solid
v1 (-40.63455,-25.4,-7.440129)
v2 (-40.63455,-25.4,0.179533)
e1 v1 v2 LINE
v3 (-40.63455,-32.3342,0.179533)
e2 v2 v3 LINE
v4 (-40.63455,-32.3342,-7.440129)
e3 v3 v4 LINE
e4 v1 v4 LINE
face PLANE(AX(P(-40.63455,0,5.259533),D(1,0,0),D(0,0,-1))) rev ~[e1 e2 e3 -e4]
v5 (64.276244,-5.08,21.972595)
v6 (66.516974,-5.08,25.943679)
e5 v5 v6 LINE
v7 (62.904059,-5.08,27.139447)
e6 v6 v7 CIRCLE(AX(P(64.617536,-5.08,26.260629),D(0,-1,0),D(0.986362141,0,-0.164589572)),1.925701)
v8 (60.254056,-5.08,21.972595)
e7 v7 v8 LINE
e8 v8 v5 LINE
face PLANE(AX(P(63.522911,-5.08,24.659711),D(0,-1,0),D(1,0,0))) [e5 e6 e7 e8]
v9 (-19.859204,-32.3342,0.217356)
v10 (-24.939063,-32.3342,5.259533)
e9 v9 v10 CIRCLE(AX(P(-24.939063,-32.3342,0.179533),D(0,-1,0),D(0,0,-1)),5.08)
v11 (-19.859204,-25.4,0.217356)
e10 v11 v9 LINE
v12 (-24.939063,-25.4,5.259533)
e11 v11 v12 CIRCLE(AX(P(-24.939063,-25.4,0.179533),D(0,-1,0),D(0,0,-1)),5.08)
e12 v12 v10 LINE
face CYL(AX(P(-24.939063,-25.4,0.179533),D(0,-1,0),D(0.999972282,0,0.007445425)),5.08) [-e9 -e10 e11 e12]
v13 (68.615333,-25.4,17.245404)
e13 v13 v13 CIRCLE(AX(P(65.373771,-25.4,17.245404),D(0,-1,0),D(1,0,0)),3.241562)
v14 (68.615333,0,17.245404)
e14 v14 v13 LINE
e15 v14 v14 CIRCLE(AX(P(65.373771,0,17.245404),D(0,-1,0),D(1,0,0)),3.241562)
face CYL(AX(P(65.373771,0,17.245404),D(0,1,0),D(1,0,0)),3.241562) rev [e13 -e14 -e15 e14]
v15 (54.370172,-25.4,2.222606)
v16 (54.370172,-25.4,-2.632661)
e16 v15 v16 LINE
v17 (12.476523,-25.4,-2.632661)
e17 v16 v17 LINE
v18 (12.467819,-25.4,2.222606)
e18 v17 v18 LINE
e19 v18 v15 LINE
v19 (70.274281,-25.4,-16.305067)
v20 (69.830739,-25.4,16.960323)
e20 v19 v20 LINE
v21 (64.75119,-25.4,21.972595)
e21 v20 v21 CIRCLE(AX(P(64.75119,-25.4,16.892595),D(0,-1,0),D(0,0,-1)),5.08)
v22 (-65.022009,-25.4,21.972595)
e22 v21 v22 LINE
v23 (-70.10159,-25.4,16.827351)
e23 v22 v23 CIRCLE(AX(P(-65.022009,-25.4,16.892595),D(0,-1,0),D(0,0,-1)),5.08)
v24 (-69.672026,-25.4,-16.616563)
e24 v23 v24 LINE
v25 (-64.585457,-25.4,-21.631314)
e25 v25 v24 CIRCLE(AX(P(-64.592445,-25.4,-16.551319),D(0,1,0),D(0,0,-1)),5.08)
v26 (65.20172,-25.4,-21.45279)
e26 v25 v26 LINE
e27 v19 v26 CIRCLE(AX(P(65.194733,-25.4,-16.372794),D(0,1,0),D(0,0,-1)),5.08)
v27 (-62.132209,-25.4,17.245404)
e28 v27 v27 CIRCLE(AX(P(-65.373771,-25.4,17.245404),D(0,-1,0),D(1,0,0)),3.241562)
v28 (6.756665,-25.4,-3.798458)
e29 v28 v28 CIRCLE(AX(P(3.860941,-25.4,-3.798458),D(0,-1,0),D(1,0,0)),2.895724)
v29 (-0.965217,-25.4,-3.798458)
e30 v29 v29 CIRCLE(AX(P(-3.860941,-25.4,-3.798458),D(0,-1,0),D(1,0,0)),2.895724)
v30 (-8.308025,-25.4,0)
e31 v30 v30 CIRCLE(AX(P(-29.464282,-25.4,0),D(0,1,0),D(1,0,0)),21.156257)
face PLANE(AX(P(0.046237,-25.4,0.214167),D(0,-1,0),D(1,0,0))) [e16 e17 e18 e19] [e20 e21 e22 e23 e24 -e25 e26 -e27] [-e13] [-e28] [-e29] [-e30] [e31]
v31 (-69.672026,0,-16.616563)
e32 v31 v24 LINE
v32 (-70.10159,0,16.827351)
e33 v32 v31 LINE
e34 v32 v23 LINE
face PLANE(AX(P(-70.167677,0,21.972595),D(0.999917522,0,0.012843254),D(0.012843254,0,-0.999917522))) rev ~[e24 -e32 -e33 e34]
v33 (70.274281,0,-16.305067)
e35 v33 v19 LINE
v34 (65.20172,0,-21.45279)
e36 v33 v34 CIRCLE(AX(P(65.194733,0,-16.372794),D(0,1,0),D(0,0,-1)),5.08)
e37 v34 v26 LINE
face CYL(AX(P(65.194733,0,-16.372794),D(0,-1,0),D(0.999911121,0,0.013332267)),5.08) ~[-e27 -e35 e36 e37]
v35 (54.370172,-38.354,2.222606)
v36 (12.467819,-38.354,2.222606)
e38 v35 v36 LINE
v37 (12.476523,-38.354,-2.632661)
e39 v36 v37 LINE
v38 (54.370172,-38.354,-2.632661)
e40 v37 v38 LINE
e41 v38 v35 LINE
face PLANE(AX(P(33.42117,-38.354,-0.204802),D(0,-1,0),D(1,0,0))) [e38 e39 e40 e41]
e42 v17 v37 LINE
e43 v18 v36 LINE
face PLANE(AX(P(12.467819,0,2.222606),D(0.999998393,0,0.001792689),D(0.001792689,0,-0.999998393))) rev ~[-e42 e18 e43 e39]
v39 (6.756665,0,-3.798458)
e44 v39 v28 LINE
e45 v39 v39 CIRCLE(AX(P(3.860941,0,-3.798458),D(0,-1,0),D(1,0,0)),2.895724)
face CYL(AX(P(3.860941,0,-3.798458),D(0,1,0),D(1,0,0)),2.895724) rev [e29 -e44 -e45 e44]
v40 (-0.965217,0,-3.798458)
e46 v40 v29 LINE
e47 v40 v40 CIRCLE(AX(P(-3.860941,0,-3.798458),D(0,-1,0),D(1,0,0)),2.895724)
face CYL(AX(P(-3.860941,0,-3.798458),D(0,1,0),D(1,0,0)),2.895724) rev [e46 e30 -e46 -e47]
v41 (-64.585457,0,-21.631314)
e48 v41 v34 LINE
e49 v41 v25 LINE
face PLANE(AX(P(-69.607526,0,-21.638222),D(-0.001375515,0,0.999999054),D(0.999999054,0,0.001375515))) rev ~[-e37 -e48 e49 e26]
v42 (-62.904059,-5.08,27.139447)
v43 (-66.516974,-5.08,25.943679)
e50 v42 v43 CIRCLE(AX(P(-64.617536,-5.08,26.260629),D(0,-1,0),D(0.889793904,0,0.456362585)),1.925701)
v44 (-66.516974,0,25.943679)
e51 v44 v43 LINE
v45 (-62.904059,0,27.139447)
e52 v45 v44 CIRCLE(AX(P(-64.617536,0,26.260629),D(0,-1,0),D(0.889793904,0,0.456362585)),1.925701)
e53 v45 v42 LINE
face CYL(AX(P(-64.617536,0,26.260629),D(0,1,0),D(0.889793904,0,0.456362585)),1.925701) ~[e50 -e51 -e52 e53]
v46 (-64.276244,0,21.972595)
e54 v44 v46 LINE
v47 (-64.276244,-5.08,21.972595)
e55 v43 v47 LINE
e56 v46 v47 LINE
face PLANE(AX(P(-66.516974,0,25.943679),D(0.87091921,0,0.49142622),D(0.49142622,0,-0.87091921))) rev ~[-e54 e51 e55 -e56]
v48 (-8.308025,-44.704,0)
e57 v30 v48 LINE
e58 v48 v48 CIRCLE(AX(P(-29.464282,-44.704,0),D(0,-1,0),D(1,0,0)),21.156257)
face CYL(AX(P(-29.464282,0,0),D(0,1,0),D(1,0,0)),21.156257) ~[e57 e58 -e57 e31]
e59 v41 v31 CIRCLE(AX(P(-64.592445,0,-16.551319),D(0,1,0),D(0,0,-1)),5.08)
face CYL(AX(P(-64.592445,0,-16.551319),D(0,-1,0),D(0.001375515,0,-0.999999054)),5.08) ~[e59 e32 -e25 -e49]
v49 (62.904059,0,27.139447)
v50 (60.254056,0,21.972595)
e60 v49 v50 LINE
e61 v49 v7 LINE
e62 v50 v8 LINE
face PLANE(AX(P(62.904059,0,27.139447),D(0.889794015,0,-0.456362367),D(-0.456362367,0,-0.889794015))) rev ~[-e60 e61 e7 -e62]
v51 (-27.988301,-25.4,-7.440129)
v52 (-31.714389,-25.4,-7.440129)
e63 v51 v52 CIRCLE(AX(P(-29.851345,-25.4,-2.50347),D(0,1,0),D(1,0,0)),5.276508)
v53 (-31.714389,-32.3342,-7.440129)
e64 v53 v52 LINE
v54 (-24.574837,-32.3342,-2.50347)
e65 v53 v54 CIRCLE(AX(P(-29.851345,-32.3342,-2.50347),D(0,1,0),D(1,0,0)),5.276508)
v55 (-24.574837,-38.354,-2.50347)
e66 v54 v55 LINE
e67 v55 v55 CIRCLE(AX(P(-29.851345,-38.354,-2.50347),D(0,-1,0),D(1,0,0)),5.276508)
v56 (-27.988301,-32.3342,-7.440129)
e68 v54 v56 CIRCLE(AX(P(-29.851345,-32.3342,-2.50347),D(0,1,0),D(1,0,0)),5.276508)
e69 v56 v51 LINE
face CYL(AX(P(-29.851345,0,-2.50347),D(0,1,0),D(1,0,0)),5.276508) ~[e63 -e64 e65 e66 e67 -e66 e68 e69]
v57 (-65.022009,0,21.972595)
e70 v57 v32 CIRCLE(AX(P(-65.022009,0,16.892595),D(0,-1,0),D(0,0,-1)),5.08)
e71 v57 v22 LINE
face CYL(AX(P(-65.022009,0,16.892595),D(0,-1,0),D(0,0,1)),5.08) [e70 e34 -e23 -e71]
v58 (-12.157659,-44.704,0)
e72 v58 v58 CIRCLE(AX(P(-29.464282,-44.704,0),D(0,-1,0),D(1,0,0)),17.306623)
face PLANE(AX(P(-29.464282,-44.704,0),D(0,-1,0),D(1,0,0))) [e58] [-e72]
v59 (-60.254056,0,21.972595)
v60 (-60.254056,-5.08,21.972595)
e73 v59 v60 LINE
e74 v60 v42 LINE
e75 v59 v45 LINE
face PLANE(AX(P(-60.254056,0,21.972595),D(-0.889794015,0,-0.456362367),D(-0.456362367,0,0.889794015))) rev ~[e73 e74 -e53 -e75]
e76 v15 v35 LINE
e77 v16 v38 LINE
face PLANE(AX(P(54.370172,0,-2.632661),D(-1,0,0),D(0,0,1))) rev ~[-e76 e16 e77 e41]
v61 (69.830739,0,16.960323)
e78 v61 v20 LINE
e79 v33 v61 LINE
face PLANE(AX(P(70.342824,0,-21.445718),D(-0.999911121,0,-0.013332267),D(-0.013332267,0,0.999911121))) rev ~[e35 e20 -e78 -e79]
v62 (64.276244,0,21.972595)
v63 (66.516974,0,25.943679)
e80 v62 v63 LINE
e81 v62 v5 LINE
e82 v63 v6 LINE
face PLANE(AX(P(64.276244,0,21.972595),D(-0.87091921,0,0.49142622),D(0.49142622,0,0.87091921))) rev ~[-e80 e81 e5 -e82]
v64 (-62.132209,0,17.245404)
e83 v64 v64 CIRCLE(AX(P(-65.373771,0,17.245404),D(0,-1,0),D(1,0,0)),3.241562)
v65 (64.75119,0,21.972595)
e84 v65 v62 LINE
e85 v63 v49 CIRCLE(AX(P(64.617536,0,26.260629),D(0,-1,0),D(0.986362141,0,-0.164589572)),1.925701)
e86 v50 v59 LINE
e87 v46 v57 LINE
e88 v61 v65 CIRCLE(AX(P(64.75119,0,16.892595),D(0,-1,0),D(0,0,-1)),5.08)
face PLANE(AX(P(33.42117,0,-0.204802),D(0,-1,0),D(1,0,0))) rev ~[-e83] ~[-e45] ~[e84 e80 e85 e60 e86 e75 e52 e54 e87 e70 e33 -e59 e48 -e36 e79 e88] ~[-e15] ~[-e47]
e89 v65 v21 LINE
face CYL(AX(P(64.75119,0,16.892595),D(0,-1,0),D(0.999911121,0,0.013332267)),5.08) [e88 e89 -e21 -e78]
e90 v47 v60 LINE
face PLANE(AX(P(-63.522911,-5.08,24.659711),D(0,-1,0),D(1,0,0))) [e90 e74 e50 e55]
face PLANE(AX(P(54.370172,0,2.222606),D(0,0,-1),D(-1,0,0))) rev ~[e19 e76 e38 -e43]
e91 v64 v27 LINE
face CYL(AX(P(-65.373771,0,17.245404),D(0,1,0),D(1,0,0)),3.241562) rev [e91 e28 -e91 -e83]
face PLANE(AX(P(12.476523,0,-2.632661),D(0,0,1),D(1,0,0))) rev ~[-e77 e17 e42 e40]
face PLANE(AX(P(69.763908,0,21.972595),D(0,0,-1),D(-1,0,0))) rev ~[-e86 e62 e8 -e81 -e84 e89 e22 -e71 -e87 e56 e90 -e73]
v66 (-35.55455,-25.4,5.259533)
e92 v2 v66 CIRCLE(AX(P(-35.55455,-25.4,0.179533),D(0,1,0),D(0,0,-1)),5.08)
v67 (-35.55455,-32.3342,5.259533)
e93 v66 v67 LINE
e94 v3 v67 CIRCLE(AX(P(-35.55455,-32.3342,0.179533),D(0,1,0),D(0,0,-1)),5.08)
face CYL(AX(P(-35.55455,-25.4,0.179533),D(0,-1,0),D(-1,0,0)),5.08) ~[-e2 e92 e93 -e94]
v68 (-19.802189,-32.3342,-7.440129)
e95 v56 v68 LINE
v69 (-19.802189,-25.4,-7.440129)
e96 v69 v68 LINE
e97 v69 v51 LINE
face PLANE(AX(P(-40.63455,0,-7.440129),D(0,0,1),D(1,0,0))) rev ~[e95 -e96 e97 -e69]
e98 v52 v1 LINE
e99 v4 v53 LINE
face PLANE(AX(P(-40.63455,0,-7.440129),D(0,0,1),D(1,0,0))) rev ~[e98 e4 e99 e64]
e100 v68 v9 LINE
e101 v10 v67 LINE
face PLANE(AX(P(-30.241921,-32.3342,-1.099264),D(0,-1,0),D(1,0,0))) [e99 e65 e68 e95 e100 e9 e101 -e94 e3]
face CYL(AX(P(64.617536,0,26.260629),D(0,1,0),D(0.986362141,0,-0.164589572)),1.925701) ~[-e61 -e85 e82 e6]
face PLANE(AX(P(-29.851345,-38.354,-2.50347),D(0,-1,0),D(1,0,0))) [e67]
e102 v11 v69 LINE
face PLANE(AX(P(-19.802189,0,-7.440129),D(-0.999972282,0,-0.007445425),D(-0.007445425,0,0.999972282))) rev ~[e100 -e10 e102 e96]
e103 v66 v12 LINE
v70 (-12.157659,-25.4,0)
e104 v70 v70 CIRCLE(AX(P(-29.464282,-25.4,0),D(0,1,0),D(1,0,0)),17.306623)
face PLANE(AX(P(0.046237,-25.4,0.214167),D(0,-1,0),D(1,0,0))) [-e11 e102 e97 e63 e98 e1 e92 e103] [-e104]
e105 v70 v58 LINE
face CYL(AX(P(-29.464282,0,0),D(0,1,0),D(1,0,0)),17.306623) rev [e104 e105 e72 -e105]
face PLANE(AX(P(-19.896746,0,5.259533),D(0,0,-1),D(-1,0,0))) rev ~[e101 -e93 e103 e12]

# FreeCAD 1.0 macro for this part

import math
import FreeCAD as App
import Part
import Sketcher

V = App.Vector
Q = App.Units.Quantity


def edges_at(feature, points):
    """Names of the edges that pass closest to the given points."""
    edges = feature.Shape.Edges
    near = lambda p: min(range(len(edges)), key=lambda i: edges[i].distToShape(Part.Vertex(*p))[0])
    return sorted({f"Edge{near(p) + 1}" for p in points})


def add_polygon(sketch, points):
    """Adds a closed chain of lines whose ends are joined by coincident constraints."""
    first, n = sketch.GeometryCount, len(points)
    for a, b in zip(points, points[1:] + points[:1]):
        sketch.addGeometry(Part.LineSegment(App.Vector(*a, 0), App.Vector(*b, 0)), False)
    for i in range(n):
        sketch.addConstraint(Sketcher.Constraint("Coincident", first + i, 2, first + (i + 1) % n, 1))

doc = App.newDocument("Part")
params = doc.addObject("Spreadsheet::Sheet", "Params")
for row, (alias, value) in enumerate([
    ("pad1_length", "1 in"),
    ("fillet_radius", "0.2 in"),
    ("pad2_length", "0.2 in"),
    ("pad3_length", "1.273 in"),
    ("fillet2_radius", "0.2 in"),
    ("pad4_length", "1.51 in"),
    ("pad5_length", "1.76 in"),
    ("pad6_length", "1.51 in"),
], start=1):
    params.set(f"A{row}", alias)
    params.set(f"B{row}", "=" + value)
    params.setAlias(f"B{row}", alias)

body = doc.addObject("PartDesign::Body", "Body")

# Sketch on XZ plane
sketch1 = body.newObject("Sketcher::SketchObject", "Sketch")
sketch1.AttachmentSupport = (doc.getObject("XZ_Plane"), [""])
sketch1.MapMode = "FlatFace"
add_polygon(sketch1, [(70.342824, -21.445718), (69.763908, 21.972595), (-70.167677, 21.972595), (-69.607526, -21.638222)])  # lines 0-3
sketch1.addGeometry(Part.Circle(V(-3.860941, -3.798458, 0), V(0, 0, 1), 2.895724), False)  # 4
sketch1.addGeometry(Part.Circle(V(3.860941, -3.798458, 0), V(0, 0, 1), 2.895724), False)  # 5
sketch1.addGeometry(Part.Circle(V(-65.373771, 17.245404, 0), V(0, 0, 1), 3.241562), False)  # 6
sketch1.addGeometry(Part.Circle(V(65.373771, 17.245404, 0), V(0, 0, 1), 3.241562), False)  # 7
sketch1.addConstraint(Sketcher.Constraint("Horizontal", 1))
sketch1.addConstraint(Sketcher.Constraint("Equal", 4, 5))
sketch1.addConstraint(Sketcher.Constraint("Equal", 6, 7))
sketch1.addConstraint(Sketcher.Constraint("Symmetric", 4, 3, 5, 3, -2))
sketch1.addConstraint(Sketcher.Constraint("Symmetric", 6, 3, 7, 3, -2))
sketch1.addConstraint(Sketcher.Constraint("Diameter", 4, Q("5.791448 mm")))
sketch1.addConstraint(Sketcher.Constraint("Diameter", 6, Q("6.483124 mm")))
sketch1.addConstraint(Sketcher.Constraint("DistanceX", 1, 2, 1, 1, Q("139.931585 mm")))
sketch1.addConstraint(Sketcher.Constraint("DistanceX", 4, 3, -1, 1, Q("3.860941 mm")))
sketch1.addConstraint(Sketcher.Constraint("DistanceY", 4, 3, -1, 1, Q("3.798458 mm")))
sketch1.addConstraint(Sketcher.Constraint("DistanceX", 6, 3, -1, 1, Q("65.373771 mm")))
sketch1.addConstraint(Sketcher.Constraint("DistanceX", -1, 1, 0, 2, Q("69.763908 mm")))
sketch1.addConstraint(Sketcher.Constraint("DistanceY", 2, 2, -1, 1, Q("21.638222 mm")))
sketch1.addConstraint(Sketcher.Constraint("DistanceY", 7, 3, 0, 2, Q("4.727191 mm")))
sketch1.addConstraint(Sketcher.Constraint("DistanceX", 1, 2, 2, 2, Q("0.560151 mm")))
sketch1.addConstraint(Sketcher.Constraint("DistanceY", 3, 2, 5, 3, Q("17.64726 mm")))
sketch1.addConstraint(Sketcher.Constraint("DistanceX", 2, 2, 3, 2, Q("139.95035 mm")))
sketch1.addConstraint(Sketcher.Constraint("Distance", 0, Q("43.422172 mm")))
pad1 = body.newObject("PartDesign::Pad", "Pad")
pad1.Profile = sketch1
pad1.setExpression("Length", "Params.pad1_length")
doc.recompute()

fillet = body.newObject("PartDesign::Fillet", "Fillet")
fillet.Base = (pad1, edges_at(pad1, [
    (69.764, -12.7, 21.973),
    (-70.168, -12.7, 21.973),
    (-69.608, -12.7, -21.638),
    (70.343, -12.7, -21.446),
]))
fillet.setExpression("Radius", "Params.fillet_radius")

# Sketch on XZ plane
sketch2 = body.newObject("Sketcher::SketchObject", "Sketch001")
sketch2.AttachmentSupport = (doc.getObject("XZ_Plane"), [""])
sketch2.MapMode = "FlatFace"
sketch2.addGeometry(Part.LineSegment(V(-64.276244, 21.972595, 0), V(-60.254056, 21.972595, 0)), False)
sketch2.addGeometry(Part.LineSegment(V(-60.254056, 21.972595, 0), V(-62.904059, 27.139447, 0)), False)
sketch2.addGeometry(Part.ArcOfCircle(Part.Circle(V(-64.617536, 26.260629, 0), V(0, 0, 1), 1.925701), math.radians(27.15264), math.radians(189.473393)), False)
sketch2.addGeometry(Part.LineSegment(V(-66.516974, 25.943679, 0), V(-64.276244, 21.972595, 0)), False)
sketch2.addGeometry(Part.LineSegment(V(60.254056, 21.972595, 0), V(64.276244, 21.972595, 0)), False)
sketch2.addGeometry(Part.LineSegment(V(64.276244, 21.972595, 0), V(66.516974, 25.943679, 0)), False)
sketch2.addGeometry(Part.ArcOfCircle(Part.Circle(V(64.617536, 26.260629, 0), V(0, 0, 1), 1.925701), math.radians(-9.473393), math.radians(152.84736)), False)
sketch2.addGeometry(Part.LineSegment(V(62.904059, 27.139447, 0), V(60.254056, 21.972595, 0)), False)
sketch2.addConstraint(Sketcher.Constraint("Coincident", 0, 2, 1, 1))
sketch2.addConstraint(Sketcher.Constraint("Tangent", 1, 2, 2, 1))
sketch2.addConstraint(Sketcher.Constraint("Coincident", 2, 2, 3, 1))
sketch2.addConstraint(Sketcher.Constraint("Coincident", 3, 2, 0, 1))
sketch2.addConstraint(Sketcher.Constraint("Coincident", 4, 2, 5, 1))
sketch2.addConstraint(Sketcher.Constraint("Coincident", 5, 2, 6, 1))
sketch2.addConstraint(Sketcher.Constraint("Tangent", 6, 2, 7, 1))
sketch2.addConstraint(Sketcher.Constraint("Coincident", 7, 2, 4, 1))
sketch2.addConstraint(Sketcher.Constraint("Horizontal", 0))
sketch2.addConstraint(Sketcher.Constraint("Horizontal", 4))
sketch2.addConstraint(Sketcher.Constraint("Equal", 2, 6))
sketch2.addConstraint(Sketcher.Constraint("Symmetric", 2, 3, 6, 3, -2))
sketch2.addConstraint(Sketcher.Constraint("Symmetric", 3, 2, 4, 2, -2))
sketch2.addConstraint(Sketcher.Constraint("Horizontal", 2, 2, 5, 2))
sketch2.addConstraint(Sketcher.Constraint("Horizontal", 1, 2, 6, 2))
sketch2.addConstraint(Sketcher.Constraint("Radius", 2, Q("1.925701 mm")))
sketch2.addConstraint(Sketcher.Constraint("DistanceX", 0, 1, 0, 2, Q("4.022188 mm")))
sketch2.addConstraint(Sketcher.Constraint("DistanceX", 0, 2, 4, 2, Q("124.5303 mm")))
sketch2.addConstraint(Sketcher.Constraint("DistanceY", -1, 1, 2, 3, Q("26.260629 mm")))
sketch2.addConstraint(Sketcher.Constraint("DistanceX", 1, 2, -1, 1, Q("62.904059 mm")))
sketch2.addConstraint(Sketcher.Constraint("DistanceY", -1, 1, 2, 2, Q("25.943679 mm")))
sketch2.addConstraint(Sketcher.Constraint("DistanceX", 2, 3, 6, 3, Q("129.235071 mm")))
pad2 = body.newObject("PartDesign::Pad", "Pad001")
pad2.Profile = sketch2
pad2.setExpression("Length", "Params.pad2_length")

# Sketch on XZ plane
sketch3 = body.newObject("Sketcher::SketchObject", "Sketch002")
sketch3.AttachmentSupport = (doc.getObject("XZ_Plane"), [""])
sketch3.MapMode = "FlatFace"
add_polygon(sketch3, [(-19.896746, 5.259533), (-40.63455, 5.259533), (-40.63455, -7.440129), (-19.802189, -7.440129)])  # lines 0-3
sketch3.addConstraint(Sketcher.Constraint("Horizontal", 0))
sketch3.addConstraint(Sketcher.Constraint("Vertical", 1))
sketch3.addConstraint(Sketcher.Constraint("Horizontal", 2))
sketch3.addConstraint(Sketcher.Constraint("DistanceX", 2, 1, 2, 2, Q("20.832361 mm")))
sketch3.addConstraint(Sketcher.Constraint("DistanceX", 0, 2, 0, 1, Q("20.737804 mm")))
sketch3.addConstraint(Sketcher.Constraint("DistanceY", 1, 2, 1, 1, Q("12.699662 mm")))
sketch3.addConstraint(Sketcher.Constraint("DistanceX", 0, 2, -1, 1, Q("40.63455 mm")))
sketch3.addConstraint(Sketcher.Constraint("DistanceY", 1, 2, -1, 1, Q("7.440129 mm")))
pad3 = body.newObject("PartDesign::Pad", "Pad002")
pad3.Profile = sketch3
pad3.setExpression("Length", "Params.pad3_length")
doc.recompute()

fillet2 = body.newObject("PartDesign::Fillet", "Fillet001")
fillet2.Base = (pad3, edges_at(pad3, [(-40.635, -28.867, 5.26), (-19.897, -28.867, 5.26)]))
fillet2.setExpression("Radius", "Params.fillet2_radius")

# Sketch on XZ plane
sketch4 = body.newObject("Sketcher::SketchObject", "Sketch003")
sketch4.AttachmentSupport = (doc.getObject("XZ_Plane"), [""])
sketch4.MapMode = "FlatFace"
sketch4.addGeometry(Part.Circle(V(-29.851345, -2.50347, 0), V(0, 0, 1), 5.276508), False)
sketch4.addConstraint(Sketcher.Constraint("Diameter", 0, Q("10.553016 mm")))
sketch4.addConstraint(Sketcher.Constraint("DistanceY", 0, 3, -1, 1, Q("2.50347 mm")))
sketch4.addConstraint(Sketcher.Constraint("DistanceX", 0, 3, -1, 1, Q("29.851345 mm")))
pad4 = body.newObject("PartDesign::Pad", "Pad003")
pad4.Profile = sketch4
pad4.setExpression("Length", "Params.pad4_length")

# Sketch on XZ plane
sketch5 = body.newObject("Sketcher::SketchObject", "Sketch004")
sketch5.AttachmentSupport = (doc.getObject("XZ_Plane"), [""])
sketch5.MapMode = "FlatFace"
sketch5.addGeometry(Part.Circle(V(-29.464282, 0, 0), V(0, 0, 1), 21.156257), False)
sketch5.addGeometry(Part.Circle(V(-29.464282, 0, 0), V(0, 0, 1), 17.306623), False)
sketch5.addConstraint(Sketcher.Constraint("Coincident", 1, 3, 0, 3))
sketch5.addConstraint(Sketcher.Constraint("PointOnObject", 0, 3, -1))
sketch5.addConstraint(Sketcher.Constraint("Diameter", 0, Q("42.312514 mm")))
sketch5.addConstraint(Sketcher.Constraint("Diameter", 1, Q("34.613246 mm")))
sketch5.addConstraint(Sketcher.Constraint("DistanceX", 0, 3, -1, 1, Q("29.464282 mm")))
pad5 = body.newObject("PartDesign::Pad", "Pad004")
pad5.Profile = sketch5
pad5.setExpression("Length", "Params.pad5_length")

# Sketch on XZ plane
sketch6 = body.newObject("Sketcher::SketchObject", "Sketch005")
sketch6.AttachmentSupport = (doc.getObject("XZ_Plane"), [""])
sketch6.MapMode = "FlatFace"
add_polygon(sketch6, [(54.370172, 2.222606), (12.467819, 2.222606), (12.476523, -2.632661), (54.370172, -2.632661)])  # lines 0-3
sketch6.addConstraint(Sketcher.Constraint("Horizontal", 0))
sketch6.addConstraint(Sketcher.Constraint("Horizontal", 2))
sketch6.addConstraint(Sketcher.Constraint("Vertical", 3))
sketch6.addConstraint(Sketcher.Constraint("DistanceX", 2, 1, 2, 2, Q("41.893649 mm")))
sketch6.addConstraint(Sketcher.Constraint("DistanceX", 0, 2, 0, 1, Q("41.902353 mm")))
sketch6.addConstraint(Sketcher.Constraint("DistanceY", 3, 1, 3, 2, Q("4.855267 mm")))
sketch6.addConstraint(Sketcher.Constraint("DistanceX", -1, 1, 0, 2, Q("12.467819 mm")))
sketch6.addConstraint(Sketcher.Constraint("DistanceY", 1, 2, -1, 1, Q("2.632661 mm")))
pad6 = body.newObject("PartDesign::Pad", "Pad005")
pad6.Profile = sketch6
pad6.setExpression("Length", "Params.pad6_length")

doc.recompute()
